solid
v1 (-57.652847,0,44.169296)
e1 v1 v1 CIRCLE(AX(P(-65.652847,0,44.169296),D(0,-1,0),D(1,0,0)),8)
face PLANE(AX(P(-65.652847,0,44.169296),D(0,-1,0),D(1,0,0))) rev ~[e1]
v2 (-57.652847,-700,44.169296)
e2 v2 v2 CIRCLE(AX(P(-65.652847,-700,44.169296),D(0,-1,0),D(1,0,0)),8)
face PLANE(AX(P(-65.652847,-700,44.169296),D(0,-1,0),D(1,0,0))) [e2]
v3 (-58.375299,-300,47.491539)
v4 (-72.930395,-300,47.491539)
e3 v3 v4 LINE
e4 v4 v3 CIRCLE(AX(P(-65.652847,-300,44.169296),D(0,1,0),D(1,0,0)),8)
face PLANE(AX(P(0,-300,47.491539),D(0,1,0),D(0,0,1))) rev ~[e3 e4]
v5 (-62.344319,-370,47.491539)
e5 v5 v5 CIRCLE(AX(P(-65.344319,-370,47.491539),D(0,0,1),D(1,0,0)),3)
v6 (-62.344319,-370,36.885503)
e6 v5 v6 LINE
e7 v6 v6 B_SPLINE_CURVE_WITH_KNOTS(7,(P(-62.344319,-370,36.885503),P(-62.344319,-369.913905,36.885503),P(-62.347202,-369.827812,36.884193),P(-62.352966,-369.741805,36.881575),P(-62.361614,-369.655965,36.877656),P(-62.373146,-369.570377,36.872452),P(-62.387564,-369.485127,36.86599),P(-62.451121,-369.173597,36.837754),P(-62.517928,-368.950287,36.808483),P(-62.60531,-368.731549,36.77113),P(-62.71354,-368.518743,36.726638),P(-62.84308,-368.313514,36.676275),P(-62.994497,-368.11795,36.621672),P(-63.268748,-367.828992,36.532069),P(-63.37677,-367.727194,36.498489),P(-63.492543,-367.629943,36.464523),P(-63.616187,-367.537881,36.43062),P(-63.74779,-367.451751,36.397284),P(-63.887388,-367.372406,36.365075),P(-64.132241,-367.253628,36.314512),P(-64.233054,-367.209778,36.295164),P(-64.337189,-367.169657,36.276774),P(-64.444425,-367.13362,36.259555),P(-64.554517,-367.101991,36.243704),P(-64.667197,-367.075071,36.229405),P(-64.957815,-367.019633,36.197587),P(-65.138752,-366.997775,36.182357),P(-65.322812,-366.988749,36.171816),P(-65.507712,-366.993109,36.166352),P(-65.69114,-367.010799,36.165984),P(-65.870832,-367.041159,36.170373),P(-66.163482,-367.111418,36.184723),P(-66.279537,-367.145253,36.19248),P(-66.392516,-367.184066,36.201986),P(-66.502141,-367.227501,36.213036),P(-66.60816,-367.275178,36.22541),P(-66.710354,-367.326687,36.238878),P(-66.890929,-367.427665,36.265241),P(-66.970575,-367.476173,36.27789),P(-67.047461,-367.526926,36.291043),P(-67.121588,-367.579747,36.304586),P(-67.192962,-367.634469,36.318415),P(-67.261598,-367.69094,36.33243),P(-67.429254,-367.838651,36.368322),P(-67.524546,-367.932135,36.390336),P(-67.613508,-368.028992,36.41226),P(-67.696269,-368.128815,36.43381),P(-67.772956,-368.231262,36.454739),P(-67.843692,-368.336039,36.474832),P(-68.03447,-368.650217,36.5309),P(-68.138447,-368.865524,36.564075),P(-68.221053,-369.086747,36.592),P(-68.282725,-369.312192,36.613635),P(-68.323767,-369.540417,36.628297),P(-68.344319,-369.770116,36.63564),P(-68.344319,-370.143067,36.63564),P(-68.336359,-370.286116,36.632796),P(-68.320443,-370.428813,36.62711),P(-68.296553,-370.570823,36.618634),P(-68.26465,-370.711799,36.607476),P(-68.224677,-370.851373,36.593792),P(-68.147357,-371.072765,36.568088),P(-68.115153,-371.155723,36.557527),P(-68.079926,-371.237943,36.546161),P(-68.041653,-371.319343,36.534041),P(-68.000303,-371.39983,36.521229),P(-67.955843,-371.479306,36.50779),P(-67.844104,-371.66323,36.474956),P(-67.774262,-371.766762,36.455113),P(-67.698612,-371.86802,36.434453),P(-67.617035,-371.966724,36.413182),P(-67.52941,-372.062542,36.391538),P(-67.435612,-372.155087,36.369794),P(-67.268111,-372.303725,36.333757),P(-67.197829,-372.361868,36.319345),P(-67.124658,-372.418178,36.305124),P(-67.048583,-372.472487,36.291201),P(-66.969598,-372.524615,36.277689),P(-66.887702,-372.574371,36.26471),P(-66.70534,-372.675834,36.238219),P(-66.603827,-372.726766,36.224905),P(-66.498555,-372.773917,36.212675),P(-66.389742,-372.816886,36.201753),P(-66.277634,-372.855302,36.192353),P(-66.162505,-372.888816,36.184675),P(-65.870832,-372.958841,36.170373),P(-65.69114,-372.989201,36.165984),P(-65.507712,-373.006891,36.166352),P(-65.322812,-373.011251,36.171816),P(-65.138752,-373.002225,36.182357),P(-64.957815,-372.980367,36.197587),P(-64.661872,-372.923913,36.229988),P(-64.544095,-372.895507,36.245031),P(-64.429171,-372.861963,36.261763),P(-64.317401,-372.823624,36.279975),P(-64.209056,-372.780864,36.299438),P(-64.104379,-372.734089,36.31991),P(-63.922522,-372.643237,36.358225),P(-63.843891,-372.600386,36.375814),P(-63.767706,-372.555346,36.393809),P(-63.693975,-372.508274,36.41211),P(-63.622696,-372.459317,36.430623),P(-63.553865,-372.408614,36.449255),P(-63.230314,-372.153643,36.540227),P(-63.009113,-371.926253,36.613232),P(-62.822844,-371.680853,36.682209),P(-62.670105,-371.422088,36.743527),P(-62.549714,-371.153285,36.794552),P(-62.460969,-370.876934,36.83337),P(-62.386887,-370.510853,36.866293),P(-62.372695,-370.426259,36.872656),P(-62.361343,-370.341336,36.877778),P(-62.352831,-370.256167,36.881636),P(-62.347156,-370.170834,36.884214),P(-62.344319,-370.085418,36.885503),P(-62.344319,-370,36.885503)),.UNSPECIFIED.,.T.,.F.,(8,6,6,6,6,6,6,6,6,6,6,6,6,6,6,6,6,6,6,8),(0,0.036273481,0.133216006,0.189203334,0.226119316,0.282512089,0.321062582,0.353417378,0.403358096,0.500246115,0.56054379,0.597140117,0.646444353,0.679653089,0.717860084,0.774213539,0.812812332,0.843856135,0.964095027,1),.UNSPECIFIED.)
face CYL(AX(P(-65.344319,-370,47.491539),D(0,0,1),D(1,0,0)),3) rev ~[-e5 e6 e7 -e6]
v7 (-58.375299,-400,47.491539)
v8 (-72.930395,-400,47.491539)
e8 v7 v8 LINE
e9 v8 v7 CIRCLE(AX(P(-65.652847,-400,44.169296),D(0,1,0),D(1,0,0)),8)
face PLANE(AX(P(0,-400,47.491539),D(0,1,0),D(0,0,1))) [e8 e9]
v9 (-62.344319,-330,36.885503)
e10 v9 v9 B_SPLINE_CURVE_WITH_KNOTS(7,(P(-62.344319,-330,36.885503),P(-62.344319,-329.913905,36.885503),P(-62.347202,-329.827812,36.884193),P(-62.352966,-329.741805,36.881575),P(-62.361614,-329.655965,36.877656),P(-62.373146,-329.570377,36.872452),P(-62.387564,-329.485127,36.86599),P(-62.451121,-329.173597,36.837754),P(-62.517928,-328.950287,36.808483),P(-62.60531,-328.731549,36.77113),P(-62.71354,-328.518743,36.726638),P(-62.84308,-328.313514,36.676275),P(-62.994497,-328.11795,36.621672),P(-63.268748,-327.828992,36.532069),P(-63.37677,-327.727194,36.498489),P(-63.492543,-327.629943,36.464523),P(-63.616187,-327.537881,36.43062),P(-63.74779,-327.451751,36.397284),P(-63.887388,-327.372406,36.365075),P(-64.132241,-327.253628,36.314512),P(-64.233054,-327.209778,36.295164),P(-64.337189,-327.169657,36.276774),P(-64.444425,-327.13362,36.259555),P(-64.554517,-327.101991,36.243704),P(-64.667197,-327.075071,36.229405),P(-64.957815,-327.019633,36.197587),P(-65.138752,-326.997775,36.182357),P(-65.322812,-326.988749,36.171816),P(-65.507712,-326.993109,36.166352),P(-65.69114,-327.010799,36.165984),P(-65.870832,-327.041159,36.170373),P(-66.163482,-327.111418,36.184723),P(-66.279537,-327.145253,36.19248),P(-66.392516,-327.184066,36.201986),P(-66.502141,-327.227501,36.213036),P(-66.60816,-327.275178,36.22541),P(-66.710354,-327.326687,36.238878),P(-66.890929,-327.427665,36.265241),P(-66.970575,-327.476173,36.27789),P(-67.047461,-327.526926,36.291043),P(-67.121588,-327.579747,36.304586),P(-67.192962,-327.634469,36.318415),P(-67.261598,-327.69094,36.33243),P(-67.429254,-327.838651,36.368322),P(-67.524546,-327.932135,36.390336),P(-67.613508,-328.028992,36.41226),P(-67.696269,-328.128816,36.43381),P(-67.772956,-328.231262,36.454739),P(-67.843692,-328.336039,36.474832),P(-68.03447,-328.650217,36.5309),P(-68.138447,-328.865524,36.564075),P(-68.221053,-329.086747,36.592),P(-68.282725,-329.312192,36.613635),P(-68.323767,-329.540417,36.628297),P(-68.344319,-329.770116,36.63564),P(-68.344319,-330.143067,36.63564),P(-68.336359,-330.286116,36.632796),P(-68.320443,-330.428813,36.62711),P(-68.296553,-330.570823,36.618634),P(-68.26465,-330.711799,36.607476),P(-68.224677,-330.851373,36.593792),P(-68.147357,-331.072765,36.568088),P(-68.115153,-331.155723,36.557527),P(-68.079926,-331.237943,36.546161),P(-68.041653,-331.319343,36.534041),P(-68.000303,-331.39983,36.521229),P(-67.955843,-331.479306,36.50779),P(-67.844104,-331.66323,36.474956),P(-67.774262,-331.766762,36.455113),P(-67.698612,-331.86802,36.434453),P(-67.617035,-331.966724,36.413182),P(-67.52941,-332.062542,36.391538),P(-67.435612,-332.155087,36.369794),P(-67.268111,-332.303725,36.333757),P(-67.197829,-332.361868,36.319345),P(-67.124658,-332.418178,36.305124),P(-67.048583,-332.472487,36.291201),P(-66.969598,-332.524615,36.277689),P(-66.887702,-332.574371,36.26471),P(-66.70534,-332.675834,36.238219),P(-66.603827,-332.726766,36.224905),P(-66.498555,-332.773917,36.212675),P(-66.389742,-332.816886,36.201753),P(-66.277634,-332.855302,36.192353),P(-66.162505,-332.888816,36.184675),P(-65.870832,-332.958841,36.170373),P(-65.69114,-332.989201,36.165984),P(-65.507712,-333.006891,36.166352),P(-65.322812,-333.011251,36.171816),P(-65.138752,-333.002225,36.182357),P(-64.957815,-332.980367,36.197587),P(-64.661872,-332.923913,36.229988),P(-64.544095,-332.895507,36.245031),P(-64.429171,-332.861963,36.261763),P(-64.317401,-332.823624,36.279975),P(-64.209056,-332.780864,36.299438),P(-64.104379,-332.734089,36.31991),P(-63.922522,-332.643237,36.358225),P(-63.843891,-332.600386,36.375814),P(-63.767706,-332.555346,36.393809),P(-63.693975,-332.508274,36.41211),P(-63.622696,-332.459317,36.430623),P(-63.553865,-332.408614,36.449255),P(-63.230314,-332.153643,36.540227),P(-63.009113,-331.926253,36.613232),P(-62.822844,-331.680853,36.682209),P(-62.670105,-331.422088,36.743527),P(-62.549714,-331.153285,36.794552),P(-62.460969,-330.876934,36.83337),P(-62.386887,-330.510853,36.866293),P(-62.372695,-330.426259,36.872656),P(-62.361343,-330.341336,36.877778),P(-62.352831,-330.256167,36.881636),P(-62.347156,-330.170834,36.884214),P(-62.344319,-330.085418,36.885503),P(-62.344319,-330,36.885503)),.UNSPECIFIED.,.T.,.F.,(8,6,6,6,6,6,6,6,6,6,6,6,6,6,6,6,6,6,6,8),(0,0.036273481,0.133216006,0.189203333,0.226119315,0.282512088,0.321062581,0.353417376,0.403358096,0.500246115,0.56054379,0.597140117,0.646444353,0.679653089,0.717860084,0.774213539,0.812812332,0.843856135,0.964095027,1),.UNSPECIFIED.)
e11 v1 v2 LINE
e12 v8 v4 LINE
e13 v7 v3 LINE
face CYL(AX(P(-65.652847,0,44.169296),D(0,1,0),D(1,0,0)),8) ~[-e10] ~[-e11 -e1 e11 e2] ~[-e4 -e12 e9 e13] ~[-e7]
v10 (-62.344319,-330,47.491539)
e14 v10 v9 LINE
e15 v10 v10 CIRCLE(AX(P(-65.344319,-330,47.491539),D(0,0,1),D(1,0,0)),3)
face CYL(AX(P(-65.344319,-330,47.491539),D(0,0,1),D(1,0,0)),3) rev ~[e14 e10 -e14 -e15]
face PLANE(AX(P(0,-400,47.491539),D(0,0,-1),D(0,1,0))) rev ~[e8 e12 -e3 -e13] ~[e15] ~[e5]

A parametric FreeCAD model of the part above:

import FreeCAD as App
import Part
import Sketcher
from FreeCAD import Vector

doc = App.newDocument("Part")
body = doc.addObject("PartDesign::Body", "Body")

# Sketch on XZ plane
sketch1 = body.newObject("Sketcher::SketchObject", "Sketch")
sketch1.AttachmentSupport = (doc.getObject("XZ_Plane"), [""])
sketch1.MapMode = "FlatFace"
sketch1.addGeometry(Part.Circle(Vector(-66, 44, 0), Vector(0, 0, 1), 8), False)
sketch1.addConstraint(Sketcher.Constraint("Diameter", 0, 16.0))
sketch1.addConstraint(Sketcher.Constraint("DistanceX", 0, 3, -1, 1, 65.652847))
sketch1.addConstraint(Sketcher.Constraint("DistanceY", -1, 1, 0, 3, 44.169296))
pad1 = body.newObject("PartDesign::Pad", "Pad")
pad1.Profile = sketch1
pad1.Length = 700

# Sketch on YZ plane
sketch2 = body.newObject("Sketcher::SketchObject", "Sketch001")
sketch2.AttachmentSupport = (doc.getObject("YZ_Plane"), [""])
sketch2.MapMode = "FlatFace"
sketch2.addGeometry(Part.LineSegment(Vector(-400, 52, 0), Vector(-400, 47, 0)), False)
sketch2.addGeometry(Part.LineSegment(Vector(-400, 47, 0), Vector(-300, 47, 0)), False)
sketch2.addGeometry(Part.LineSegment(Vector(-300, 47, 0), Vector(-300, 52, 0)), False)
sketch2.addGeometry(Part.LineSegment(Vector(-300, 52, 0), Vector(-400, 52, 0)), False)
sketch2.addConstraint(Sketcher.Constraint("Coincident", 0, 2, 1, 1))
sketch2.addConstraint(Sketcher.Constraint("Coincident", 1, 2, 2, 1))
sketch2.addConstraint(Sketcher.Constraint("Coincident", 2, 2, 3, 1))
sketch2.addConstraint(Sketcher.Constraint("Coincident", 3, 2, 0, 1))
sketch2.addConstraint(Sketcher.Constraint("Vertical", 0))
sketch2.addConstraint(Sketcher.Constraint("Horizontal", 1))
sketch2.addConstraint(Sketcher.Constraint("Vertical", 2))
sketch2.addConstraint(Sketcher.Constraint("Horizontal", 3))
sketch2.addConstraint(Sketcher.Constraint("DistanceX", 1, 1, 1, 2, 100.0))
sketch2.addConstraint(Sketcher.Constraint("DistanceY", 0, 2, 0, 1, 5.0))
sketch2.addConstraint(Sketcher.Constraint("DistanceX", 0, 2, -1, 1, 400.0))
sketch2.addConstraint(Sketcher.Constraint("DistanceY", -1, 1, 0, 2, 47.491539))
pocket1 = body.newObject("PartDesign::Pocket", "Pocket")
pocket1.Profile = sketch2
pocket1.Length = 88

# Sketch on XY plane
sketch3 = body.newObject("Sketcher::SketchObject", "Sketch002")
sketch3.AttachmentSupport = (doc.getObject("XY_Plane"), [""])
sketch3.MapMode = "FlatFace"
sketch3.AttachmentOffset = App.Placement(Vector(0, 0, 47.491539), App.Rotation())
sketch3.addGeometry(Part.Circle(Vector(-65.3, -370, 0), Vector(0, 0, 1), 3), False)
sketch3.addGeometry(Part.Circle(Vector(-65.3, -330, 0), Vector(0, 0, 1), 3), False)
sketch3.addConstraint(Sketcher.Constraint("Equal", 0, 1))
sketch3.addConstraint(Sketcher.Constraint("Vertical", 0, 3, 1, 3))
sketch3.addConstraint(Sketcher.Constraint("Diameter", 0, 6.0))
sketch3.addConstraint(Sketcher.Constraint("DistanceY", 0, 3, -1, 1, 370.0))
sketch3.addConstraint(Sketcher.Constraint("DistanceY", 1, 3, -1, 1, 330.0))
sketch3.addConstraint(Sketcher.Constraint("DistanceX", 0, 3, -1, 1, 65.344319))
pocket2 = body.newObject("PartDesign::Pocket", "Pocket001")
pocket2.Profile = sketch3
pocket2.Length = 15

doc.recompute()
